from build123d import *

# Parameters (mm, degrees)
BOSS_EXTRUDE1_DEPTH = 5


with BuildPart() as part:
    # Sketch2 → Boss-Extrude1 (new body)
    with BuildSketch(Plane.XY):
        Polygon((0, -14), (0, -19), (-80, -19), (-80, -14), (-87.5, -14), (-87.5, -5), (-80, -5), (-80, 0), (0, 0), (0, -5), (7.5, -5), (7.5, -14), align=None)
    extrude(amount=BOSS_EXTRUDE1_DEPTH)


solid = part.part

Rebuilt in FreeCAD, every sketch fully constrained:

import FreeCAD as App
import Part
import Sketcher


def add_polygon(sketch, points):
    """Adds a closed chain of lines whose ends are joined by coincident constraints."""
    first, n = sketch.GeometryCount, len(points)
    for a, b in zip(points, points[1:] + points[:1]):
        sketch.addGeometry(Part.LineSegment(App.Vector(*a, 0), App.Vector(*b, 0)), False)
    for i in range(n):
        sketch.addConstraint(Sketcher.Constraint("Coincident", first + i, 2, first + (i + 1) % n, 1))

doc = App.newDocument("Part")
body = doc.addObject("PartDesign::Body", "Body")

# Sketch on XY plane
sketch1 = doc.addObject("Sketcher::SketchObject", "Sketch")
body.addObject(sketch1)
sketch1.AttachmentSupport = (doc.XY_Plane, [""])
sketch1.MapMode = "FlatFace"
add_polygon(sketch1, [(0, -19), (0, -14), (7.5, -14), (7.5, -5), (0, -5), (0, 0), (-80, 0), (-80, -5), (-87.5, -5), (-87.5, -14), (-80, -14), (-80, -19)])  # lines 0-11
sketch1.addConstraint([
    Sketcher.Constraint("Vertical", 0),
    Sketcher.Constraint("Horizontal", 1),
    Sketcher.Constraint("Vertical", 2),
    Sketcher.Constraint("Horizontal", 3),
    Sketcher.Constraint("Vertical", 4),
    Sketcher.Constraint("Horizontal", 5),
    Sketcher.Constraint("Vertical", 6),
    Sketcher.Constraint("Horizontal", 7),
    Sketcher.Constraint("Vertical", 8),
    Sketcher.Constraint("Horizontal", 9),
    Sketcher.Constraint("Vertical", 10),
    Sketcher.Constraint("Horizontal", 11),
    Sketcher.Constraint("Coincident", 4, 2, -1, 1),
    Sketcher.Constraint("PointOnObject", 0, 2, -2),
    Sketcher.Constraint("Horizontal", 3, 2, 6, 2),
    Sketcher.Constraint("Horizontal", 1, 2, 8, 2),
    Sketcher.Constraint("Vertical", 6, 2, 9, 2),
    Sketcher.Constraint("Equal", 3, 7),
    Sketcher.Constraint("Equal", 0, 4),
    Sketcher.Constraint("DistanceX", 5, 2, 5, 1, 80.0),
    Sketcher.Constraint("DistanceY", 0, 1, 0, 2, 5.0),
    Sketcher.Constraint("DistanceY", 2, 1, 2, 2, 9.0),
    Sketcher.Constraint("DistanceX", 1, 1, 1, 2, 7.5),
])
pad1 = doc.addObject("PartDesign::Pad", "Pad")
body.addObject(pad1)
pad1.Profile = sketch1
pad1.Length = 5

doc.recompute()
